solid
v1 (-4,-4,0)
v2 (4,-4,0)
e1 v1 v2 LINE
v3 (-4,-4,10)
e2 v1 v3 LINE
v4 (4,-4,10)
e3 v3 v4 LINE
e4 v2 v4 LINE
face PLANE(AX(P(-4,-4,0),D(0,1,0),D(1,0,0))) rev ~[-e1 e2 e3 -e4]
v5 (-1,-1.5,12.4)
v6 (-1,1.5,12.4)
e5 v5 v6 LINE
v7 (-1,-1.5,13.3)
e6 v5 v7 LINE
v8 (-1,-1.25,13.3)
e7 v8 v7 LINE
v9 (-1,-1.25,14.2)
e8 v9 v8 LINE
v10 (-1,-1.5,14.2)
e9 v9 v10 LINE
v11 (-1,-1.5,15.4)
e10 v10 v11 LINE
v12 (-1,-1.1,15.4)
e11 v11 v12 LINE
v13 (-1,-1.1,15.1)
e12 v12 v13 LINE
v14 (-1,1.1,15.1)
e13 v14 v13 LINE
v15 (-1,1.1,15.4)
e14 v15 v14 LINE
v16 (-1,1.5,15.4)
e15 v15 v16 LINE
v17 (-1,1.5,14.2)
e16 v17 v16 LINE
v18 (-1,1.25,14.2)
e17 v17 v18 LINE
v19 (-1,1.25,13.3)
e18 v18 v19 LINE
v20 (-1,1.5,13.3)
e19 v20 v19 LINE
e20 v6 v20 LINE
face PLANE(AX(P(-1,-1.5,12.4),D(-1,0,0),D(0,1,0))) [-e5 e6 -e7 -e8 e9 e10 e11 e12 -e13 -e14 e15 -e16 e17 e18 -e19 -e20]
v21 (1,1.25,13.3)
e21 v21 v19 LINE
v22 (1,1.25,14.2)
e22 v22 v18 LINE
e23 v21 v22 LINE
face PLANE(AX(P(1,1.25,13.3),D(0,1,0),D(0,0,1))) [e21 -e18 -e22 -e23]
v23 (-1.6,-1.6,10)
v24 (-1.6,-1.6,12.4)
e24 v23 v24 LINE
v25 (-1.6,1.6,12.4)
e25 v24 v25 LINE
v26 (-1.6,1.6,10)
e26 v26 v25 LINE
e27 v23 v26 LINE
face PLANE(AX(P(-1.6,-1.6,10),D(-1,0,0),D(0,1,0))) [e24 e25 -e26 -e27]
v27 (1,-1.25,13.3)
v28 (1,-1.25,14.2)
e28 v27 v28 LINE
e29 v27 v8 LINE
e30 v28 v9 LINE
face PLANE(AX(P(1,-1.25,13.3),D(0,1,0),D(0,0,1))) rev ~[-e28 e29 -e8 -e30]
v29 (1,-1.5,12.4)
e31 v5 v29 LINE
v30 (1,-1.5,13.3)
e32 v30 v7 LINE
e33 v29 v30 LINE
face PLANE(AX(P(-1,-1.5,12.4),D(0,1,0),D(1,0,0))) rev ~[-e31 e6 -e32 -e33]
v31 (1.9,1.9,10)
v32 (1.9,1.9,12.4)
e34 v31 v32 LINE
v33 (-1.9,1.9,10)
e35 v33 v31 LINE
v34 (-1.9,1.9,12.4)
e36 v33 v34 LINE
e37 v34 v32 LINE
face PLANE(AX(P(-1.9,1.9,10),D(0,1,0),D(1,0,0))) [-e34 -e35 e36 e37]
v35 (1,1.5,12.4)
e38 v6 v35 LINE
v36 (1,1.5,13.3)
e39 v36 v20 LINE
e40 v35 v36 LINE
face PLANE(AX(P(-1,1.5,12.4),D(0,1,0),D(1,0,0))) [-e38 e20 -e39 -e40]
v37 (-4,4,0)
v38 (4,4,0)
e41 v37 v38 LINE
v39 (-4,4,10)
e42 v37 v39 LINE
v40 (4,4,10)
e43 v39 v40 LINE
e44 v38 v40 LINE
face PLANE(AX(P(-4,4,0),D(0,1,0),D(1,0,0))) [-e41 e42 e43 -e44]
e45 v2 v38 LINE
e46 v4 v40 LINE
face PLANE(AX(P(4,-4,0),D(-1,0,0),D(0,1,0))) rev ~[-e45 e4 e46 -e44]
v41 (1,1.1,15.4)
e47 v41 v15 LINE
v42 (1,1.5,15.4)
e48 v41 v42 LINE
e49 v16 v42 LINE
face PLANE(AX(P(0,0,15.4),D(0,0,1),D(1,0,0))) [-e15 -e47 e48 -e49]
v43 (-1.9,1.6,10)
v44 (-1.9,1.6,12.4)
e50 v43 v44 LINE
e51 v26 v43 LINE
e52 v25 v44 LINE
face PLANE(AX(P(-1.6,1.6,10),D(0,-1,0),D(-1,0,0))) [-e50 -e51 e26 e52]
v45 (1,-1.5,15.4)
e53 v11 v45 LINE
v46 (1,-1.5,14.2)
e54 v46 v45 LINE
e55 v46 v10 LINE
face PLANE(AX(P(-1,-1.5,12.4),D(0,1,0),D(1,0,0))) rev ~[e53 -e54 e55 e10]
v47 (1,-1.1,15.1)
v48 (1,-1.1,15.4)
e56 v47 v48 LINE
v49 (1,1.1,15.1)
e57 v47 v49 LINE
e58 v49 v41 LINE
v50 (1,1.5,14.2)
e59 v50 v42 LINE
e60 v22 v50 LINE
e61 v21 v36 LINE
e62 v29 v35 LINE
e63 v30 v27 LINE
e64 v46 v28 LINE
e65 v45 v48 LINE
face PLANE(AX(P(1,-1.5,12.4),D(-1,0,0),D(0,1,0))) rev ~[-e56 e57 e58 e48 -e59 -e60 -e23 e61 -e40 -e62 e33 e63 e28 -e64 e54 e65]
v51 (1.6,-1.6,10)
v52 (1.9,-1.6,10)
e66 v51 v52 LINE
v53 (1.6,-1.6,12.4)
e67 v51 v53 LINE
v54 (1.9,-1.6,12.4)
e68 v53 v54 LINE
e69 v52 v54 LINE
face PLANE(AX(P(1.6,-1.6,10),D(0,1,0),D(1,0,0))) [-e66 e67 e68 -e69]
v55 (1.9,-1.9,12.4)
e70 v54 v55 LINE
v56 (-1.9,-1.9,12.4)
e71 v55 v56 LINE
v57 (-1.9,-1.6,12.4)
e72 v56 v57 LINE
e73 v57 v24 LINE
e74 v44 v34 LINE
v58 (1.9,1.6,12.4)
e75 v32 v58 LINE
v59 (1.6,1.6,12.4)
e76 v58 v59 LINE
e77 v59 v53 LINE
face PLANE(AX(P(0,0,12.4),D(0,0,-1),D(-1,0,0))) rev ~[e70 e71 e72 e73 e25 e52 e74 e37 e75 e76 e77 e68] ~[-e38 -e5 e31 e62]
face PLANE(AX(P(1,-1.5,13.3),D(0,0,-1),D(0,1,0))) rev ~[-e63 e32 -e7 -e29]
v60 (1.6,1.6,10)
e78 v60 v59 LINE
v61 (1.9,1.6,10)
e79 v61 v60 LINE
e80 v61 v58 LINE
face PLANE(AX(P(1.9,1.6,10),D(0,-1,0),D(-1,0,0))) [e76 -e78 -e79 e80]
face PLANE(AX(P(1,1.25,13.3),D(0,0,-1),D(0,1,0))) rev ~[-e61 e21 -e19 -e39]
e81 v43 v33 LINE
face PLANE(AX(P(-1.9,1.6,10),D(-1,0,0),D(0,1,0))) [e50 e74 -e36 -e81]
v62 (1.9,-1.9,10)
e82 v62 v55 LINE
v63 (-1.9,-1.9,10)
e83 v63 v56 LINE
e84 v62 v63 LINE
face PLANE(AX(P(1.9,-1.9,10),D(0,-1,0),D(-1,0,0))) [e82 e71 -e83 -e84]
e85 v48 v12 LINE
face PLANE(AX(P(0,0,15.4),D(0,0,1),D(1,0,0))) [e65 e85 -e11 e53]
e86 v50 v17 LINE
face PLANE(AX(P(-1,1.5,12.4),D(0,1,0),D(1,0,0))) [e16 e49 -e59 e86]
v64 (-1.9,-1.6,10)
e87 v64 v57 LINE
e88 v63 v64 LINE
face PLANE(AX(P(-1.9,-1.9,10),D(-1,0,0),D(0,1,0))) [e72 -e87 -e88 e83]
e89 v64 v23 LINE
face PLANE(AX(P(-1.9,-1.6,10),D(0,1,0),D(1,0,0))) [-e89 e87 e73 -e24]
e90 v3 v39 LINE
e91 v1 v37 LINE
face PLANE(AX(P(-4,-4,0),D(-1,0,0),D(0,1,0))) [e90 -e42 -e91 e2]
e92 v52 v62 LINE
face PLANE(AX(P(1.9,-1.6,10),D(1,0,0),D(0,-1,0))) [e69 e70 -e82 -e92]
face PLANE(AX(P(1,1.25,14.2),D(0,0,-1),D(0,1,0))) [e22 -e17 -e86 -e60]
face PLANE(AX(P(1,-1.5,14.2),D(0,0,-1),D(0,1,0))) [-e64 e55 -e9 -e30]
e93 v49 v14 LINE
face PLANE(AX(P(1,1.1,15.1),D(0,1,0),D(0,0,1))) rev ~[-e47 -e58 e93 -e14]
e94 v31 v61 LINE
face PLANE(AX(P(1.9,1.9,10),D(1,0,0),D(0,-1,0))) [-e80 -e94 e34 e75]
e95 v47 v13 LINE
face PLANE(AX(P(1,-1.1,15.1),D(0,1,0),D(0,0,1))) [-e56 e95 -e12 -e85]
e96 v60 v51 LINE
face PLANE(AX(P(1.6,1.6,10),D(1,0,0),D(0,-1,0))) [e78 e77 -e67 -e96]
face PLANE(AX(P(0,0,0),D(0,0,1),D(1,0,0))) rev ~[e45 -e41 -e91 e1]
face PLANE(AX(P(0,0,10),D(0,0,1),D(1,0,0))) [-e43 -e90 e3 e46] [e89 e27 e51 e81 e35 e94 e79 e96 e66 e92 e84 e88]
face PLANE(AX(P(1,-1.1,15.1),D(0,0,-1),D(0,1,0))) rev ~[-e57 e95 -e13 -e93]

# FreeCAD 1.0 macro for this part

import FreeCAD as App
import Part
import Sketcher

V = App.Vector


def add_polygon(sketch, points):
    """Adds a closed chain of lines whose ends are joined by coincident constraints."""
    first, n = sketch.GeometryCount, len(points)
    for a, b in zip(points, points[1:] + points[:1]):
        sketch.addGeometry(Part.LineSegment(App.Vector(*a, 0), App.Vector(*b, 0)), False)
    for i in range(n):
        sketch.addConstraint(Sketcher.Constraint("Coincident", first + i, 2, first + (i + 1) % n, 1))

doc = App.newDocument("Part")
body = doc.addObject("PartDesign::Body", "Body")

sketch1 = doc.addObject("Sketcher::SketchObject", "Sketch")
body.addObject(sketch1)
sketch1.AttachmentSupport = (doc.XY_Plane, [""])
sketch1.MapMode = "FlatFace"
add_polygon(sketch1, [(-4, 4), (-4, -4), (4, -4), (4, 4)])
sketch1.addConstraint(Sketcher.Constraint("Vertical", 0))
sketch1.addConstraint(Sketcher.Constraint("Horizontal", 1))
sketch1.addConstraint(Sketcher.Constraint("Vertical", 2))
sketch1.addConstraint(Sketcher.Constraint("Horizontal", 3))
sketch1.addConstraint(Sketcher.Constraint("Symmetric", 0, 2, 2, 2, -1, 1))
sketch1.addConstraint(Sketcher.Constraint("Equal", 3, 0))
sketch1.addConstraint(Sketcher.Constraint("DistanceX", 1, 1, 1, 2, 8.0))
pad1 = doc.addObject("PartDesign::Pad", "Pad")
body.addObject(pad1)
pad1.Profile = sketch1
pad1.Length = 10

sketch2 = doc.addObject("Sketcher::SketchObject", "Sketch001")
body.addObject(sketch2)
sketch2.AttachmentSupport = (doc.XY_Plane, [""])
sketch2.MapMode = "FlatFace"
sketch2.AttachmentOffset = App.Placement(V(0, 0, 10), App.Rotation())
add_polygon(sketch2, [(1.9, 1.9), (-1.9, 1.9), (-1.9, 1.6), (-1.6, 1.6), (-1.6, -1.6), (-1.9, -1.6), (-1.9, -1.9), (1.9, -1.9), (1.9, -1.6), (1.6, -1.6), (1.6, 1.6), (1.9, 1.6)])
sketch2.addConstraint(Sketcher.Constraint("Horizontal", 0))
sketch2.addConstraint(Sketcher.Constraint("Vertical", 1))
sketch2.addConstraint(Sketcher.Constraint("Horizontal", 2))
sketch2.addConstraint(Sketcher.Constraint("Vertical", 3))
sketch2.addConstraint(Sketcher.Constraint("Horizontal", 4))
sketch2.addConstraint(Sketcher.Constraint("Vertical", 5))
sketch2.addConstraint(Sketcher.Constraint("Horizontal", 6))
sketch2.addConstraint(Sketcher.Constraint("Vertical", 7))
sketch2.addConstraint(Sketcher.Constraint("Horizontal", 8))
sketch2.addConstraint(Sketcher.Constraint("Vertical", 9))
sketch2.addConstraint(Sketcher.Constraint("Horizontal", 10))
sketch2.addConstraint(Sketcher.Constraint("Vertical", 11))
sketch2.addConstraint(Sketcher.Constraint("Symmetric", 0, 2, 6, 2, -1, 1))
sketch2.addConstraint(Sketcher.Constraint("Symmetric", 2, 2, 8, 2, -1, 1))
sketch2.addConstraint(Sketcher.Constraint("Symmetric", 4, 2, 10, 2, -1, 1))
sketch2.addConstraint(Sketcher.Constraint("Symmetric", 4, 2, 7, 2, -2))
sketch2.addConstraint(Sketcher.Constraint("Equal", 10, 1))
sketch2.addConstraint(Sketcher.Constraint("DistanceX", 0, 2, 0, 1, 3.8))
sketch2.addConstraint(Sketcher.Constraint("DistanceX", 2, 1, 2, 2, 0.3))
sketch2.addConstraint(Sketcher.Constraint("DistanceY", 3, 2, 3, 1, 3.2))
pad2 = doc.addObject("PartDesign::Pad", "Pad001")
body.addObject(pad2)
pad2.Profile = sketch2
pad2.Length = 2.4

sketch3 = doc.addObject("Sketcher::SketchObject", "Sketch002")
body.addObject(sketch3)
sketch3.AttachmentSupport = (doc.XY_Plane, [""])
sketch3.MapMode = "FlatFace"
sketch3.AttachmentOffset = App.Placement(V(0, 0, 12.4), App.Rotation())
add_polygon(sketch3, [(-1, 1.5), (-1, -1.5), (1, -1.5), (1, 1.5)])
sketch3.addConstraint(Sketcher.Constraint("Vertical", 0))
sketch3.addConstraint(Sketcher.Constraint("Horizontal", 1))
sketch3.addConstraint(Sketcher.Constraint("Vertical", 2))
sketch3.addConstraint(Sketcher.Constraint("Horizontal", 3))
sketch3.addConstraint(Sketcher.Constraint("Symmetric", 0, 2, 2, 2, -1, 1))
sketch3.addConstraint(Sketcher.Constraint("DistanceX", 1, 1, 1, 2, 2.0))
sketch3.addConstraint(Sketcher.Constraint("DistanceY", 0, 2, 0, 1, 3.0))
pad3 = doc.addObject("PartDesign::Pad", "Pad002")
body.addObject(pad3)
pad3.Profile = sketch3
pad3.Length = 3

sketch4 = doc.addObject("Sketcher::SketchObject", "Sketch003")
body.addObject(sketch4)
sketch4.AttachmentSupport = (doc.YZ_Plane, [""])
sketch4.MapMode = "FlatFace"
sketch4.AttachmentOffset = App.Placement(V(0, 0, 1), App.Rotation())
add_polygon(sketch4, [(-1.5, 14.2), (-1.5, 13.3), (-1.25, 13.3), (-1.25, 14.2)])
add_polygon(sketch4, [(1.25, 14.2), (1.25, 13.3), (1.5, 13.3), (1.5, 14.2)])
add_polygon(sketch4, [(-1.1, 15.4), (-1.1, 15.1), (1.1, 15.1), (1.1, 15.4)])
sketch4.addConstraint(Sketcher.Constraint("Vertical", 0))
sketch4.addConstraint(Sketcher.Constraint("Horizontal", 1))
sketch4.addConstraint(Sketcher.Constraint("Vertical", 2))
sketch4.addConstraint(Sketcher.Constraint("Horizontal", 3))
sketch4.addConstraint(Sketcher.Constraint("Vertical", 4))
sketch4.addConstraint(Sketcher.Constraint("Horizontal", 5))
sketch4.addConstraint(Sketcher.Constraint("Vertical", 6))
sketch4.addConstraint(Sketcher.Constraint("Horizontal", 7))
sketch4.addConstraint(Sketcher.Constraint("Vertical", 8))
sketch4.addConstraint(Sketcher.Constraint("Horizontal", 9))
sketch4.addConstraint(Sketcher.Constraint("Vertical", 10))
sketch4.addConstraint(Sketcher.Constraint("Horizontal", 11))
sketch4.addConstraint(Sketcher.Constraint("Symmetric", 1, 2, 4, 2, -2))
sketch4.addConstraint(Sketcher.Constraint("Symmetric", 3, 2, 6, 2, -2))
sketch4.addConstraint(Sketcher.Constraint("DistanceX", 9, 1, 9, 2, 2.2))
sketch4.addConstraint(Sketcher.Constraint("DistanceY", 0, 2, 0, 1, 0.9))
sketch4.addConstraint(Sketcher.Constraint("DistanceY", 8, 2, 8, 1, 0.3))
sketch4.addConstraint(Sketcher.Constraint("DistanceX", 0, 2, 5, 2, 3.0))
sketch4.addConstraint(Sketcher.Constraint("DistanceX", 1, 1, 1, 2, 0.25))
sketch4.addConstraint(Sketcher.Constraint("DistanceY", -1, 1, 0, 2, 13.3))
sketch4.addConstraint(Sketcher.Constraint("DistanceX", 8, 2, -1, 1, 1.1))
sketch4.addConstraint(Sketcher.Constraint("DistanceY", -1, 1, 8, 2, 15.1))
pocket1 = doc.addObject("PartDesign::Pocket", "Pocket")
body.addObject(pocket1)
pocket1.Profile = sketch4
pocket1.Type = "ThroughAll"

doc.recompute()
